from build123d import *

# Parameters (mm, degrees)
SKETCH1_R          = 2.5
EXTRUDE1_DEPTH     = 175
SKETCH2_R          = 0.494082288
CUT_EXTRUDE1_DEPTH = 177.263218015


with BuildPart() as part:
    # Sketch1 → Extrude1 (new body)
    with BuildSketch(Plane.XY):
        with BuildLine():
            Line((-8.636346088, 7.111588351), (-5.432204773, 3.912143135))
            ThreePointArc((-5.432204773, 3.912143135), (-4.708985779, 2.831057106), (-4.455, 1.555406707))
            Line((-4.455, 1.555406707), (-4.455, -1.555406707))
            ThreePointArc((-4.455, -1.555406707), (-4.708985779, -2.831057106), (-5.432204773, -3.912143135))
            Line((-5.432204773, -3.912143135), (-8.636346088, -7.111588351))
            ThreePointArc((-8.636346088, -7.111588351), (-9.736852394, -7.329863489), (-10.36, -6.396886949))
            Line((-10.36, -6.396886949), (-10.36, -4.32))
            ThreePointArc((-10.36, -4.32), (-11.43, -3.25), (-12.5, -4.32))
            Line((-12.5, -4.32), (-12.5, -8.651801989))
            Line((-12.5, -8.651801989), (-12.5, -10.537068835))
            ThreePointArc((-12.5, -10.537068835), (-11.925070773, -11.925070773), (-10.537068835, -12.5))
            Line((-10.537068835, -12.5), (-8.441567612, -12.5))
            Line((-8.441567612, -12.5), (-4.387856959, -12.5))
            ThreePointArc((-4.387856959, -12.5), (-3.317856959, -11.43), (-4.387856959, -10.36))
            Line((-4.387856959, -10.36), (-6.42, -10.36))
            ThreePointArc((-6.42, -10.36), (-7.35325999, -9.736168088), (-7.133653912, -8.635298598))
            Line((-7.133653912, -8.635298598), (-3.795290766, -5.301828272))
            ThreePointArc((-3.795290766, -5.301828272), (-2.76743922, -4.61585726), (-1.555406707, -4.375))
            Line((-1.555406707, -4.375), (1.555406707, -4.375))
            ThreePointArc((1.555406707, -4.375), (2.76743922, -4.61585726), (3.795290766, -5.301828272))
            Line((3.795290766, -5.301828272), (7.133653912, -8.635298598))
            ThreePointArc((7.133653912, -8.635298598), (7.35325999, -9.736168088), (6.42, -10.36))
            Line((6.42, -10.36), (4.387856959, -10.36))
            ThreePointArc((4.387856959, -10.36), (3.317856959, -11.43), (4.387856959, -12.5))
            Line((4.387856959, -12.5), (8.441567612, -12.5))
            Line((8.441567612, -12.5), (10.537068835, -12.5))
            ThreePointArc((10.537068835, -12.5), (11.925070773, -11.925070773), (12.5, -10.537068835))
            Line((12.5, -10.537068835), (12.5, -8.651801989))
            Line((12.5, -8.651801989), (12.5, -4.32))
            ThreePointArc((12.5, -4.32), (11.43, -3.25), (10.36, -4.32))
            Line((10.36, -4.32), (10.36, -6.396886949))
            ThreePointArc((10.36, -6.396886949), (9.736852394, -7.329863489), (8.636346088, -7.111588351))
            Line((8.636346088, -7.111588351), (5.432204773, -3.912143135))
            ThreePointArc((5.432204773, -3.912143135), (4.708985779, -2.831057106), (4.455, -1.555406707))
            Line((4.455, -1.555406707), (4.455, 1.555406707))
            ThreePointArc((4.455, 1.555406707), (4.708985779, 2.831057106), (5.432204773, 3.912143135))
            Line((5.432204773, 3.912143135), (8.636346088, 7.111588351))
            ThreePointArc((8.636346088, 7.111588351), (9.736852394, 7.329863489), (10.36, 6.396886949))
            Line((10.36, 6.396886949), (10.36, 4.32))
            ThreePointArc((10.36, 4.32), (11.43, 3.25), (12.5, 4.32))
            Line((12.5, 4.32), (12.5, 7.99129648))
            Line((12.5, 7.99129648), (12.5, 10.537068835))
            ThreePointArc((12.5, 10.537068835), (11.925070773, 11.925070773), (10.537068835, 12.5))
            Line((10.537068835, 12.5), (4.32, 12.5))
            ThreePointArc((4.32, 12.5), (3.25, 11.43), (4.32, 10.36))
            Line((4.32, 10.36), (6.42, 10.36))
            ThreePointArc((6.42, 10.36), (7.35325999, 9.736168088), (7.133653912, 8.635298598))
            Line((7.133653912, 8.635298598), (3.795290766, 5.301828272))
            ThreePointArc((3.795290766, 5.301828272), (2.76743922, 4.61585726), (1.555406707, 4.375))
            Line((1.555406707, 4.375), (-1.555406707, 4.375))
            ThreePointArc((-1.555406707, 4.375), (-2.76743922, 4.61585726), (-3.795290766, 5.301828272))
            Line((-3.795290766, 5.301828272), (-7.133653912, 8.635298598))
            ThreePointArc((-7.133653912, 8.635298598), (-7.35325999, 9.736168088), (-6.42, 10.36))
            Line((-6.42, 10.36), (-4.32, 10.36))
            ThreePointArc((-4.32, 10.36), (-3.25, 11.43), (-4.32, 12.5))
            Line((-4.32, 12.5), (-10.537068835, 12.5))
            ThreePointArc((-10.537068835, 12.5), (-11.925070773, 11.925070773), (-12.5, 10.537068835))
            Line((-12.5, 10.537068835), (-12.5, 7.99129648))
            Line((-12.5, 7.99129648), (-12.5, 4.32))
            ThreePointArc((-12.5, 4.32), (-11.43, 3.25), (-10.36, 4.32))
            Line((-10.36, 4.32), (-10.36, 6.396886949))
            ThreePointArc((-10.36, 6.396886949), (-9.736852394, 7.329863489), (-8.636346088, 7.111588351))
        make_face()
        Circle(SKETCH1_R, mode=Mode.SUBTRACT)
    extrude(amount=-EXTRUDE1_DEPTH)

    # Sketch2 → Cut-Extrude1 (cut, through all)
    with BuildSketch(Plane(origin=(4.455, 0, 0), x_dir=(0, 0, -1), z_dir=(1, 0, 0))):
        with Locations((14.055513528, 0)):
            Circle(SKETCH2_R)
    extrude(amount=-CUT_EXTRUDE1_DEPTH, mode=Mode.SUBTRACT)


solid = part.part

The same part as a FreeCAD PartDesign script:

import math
import FreeCAD as App
import Part
import Sketcher

doc = App.newDocument("Part")
body = doc.addObject("PartDesign::Body", "Body")

sketch1 = body.newObject("Sketcher::SketchObject", "Sketch")
sketch1.AttachmentSupport = (doc.getObject("XY_Plane"), [""])
sketch1.MapMode = "FlatFace"
sketch1.addGeometry(Part.LineSegment(App.Vector(-8.636346, 7.111588, 0), App.Vector(-5.432205, 3.912143, 0)), False)
sketch1.addGeometry(Part.ArcOfCircle(Part.Circle(App.Vector(-7.785487, 1.555407, 0), App.Vector(0, 0, 1), 3.330487), math.radians(0), math.radians(45.042018)), False)
sketch1.addGeometry(Part.LineSegment(App.Vector(-4.455, 1.555407, 0), App.Vector(-4.455, -1.555407, 0)), False)
sketch1.addGeometry(Part.ArcOfCircle(Part.Circle(App.Vector(-7.785487, -1.555407, 0), App.Vector(0, 0, 1), 3.330487), math.radians(-45.042018), math.radians(0)), False)
sketch1.addGeometry(Part.LineSegment(App.Vector(-5.432205, -3.912143, 0), App.Vector(-8.636346, -7.111588, 0)), False)
sketch1.addGeometry(Part.ArcOfCircle(Part.Circle(App.Vector(-9.35, -6.396887, 0), App.Vector(0, 0, 1), 1.01), math.radians(-180), math.radians(-45.042018)), False)
sketch1.addGeometry(Part.LineSegment(App.Vector(-10.36, -6.396887, 0), App.Vector(-10.36, -4.32, 0)), False)
sketch1.addGeometry(Part.ArcOfCircle(Part.Circle(App.Vector(-11.43, -4.32, 0), App.Vector(0, 0, 1), 1.07), math.radians(0), math.radians(180)), False)
sketch1.addGeometry(Part.LineSegment(App.Vector(-12.5, -4.32, 0), App.Vector(-12.5, -10.537069, 0)), False)
sketch1.addGeometry(Part.ArcOfCircle(Part.Circle(App.Vector(-10.537069, -10.537069, 0), App.Vector(0, 0, 1), 1.962931), math.radians(180), math.radians(270)), False)
sketch1.addGeometry(Part.LineSegment(App.Vector(-10.537069, -12.5, 0), App.Vector(-4.387857, -12.5, 0)), False)
sketch1.addGeometry(Part.ArcOfCircle(Part.Circle(App.Vector(-4.387857, -11.43, 0), App.Vector(0, 0, 1), 1.07), math.radians(-90), math.radians(90)), False)
sketch1.addGeometry(Part.LineSegment(App.Vector(-4.387857, -10.36, 0), App.Vector(-6.42, -10.36, 0)), False)
sketch1.addGeometry(Part.ArcOfCircle(Part.Circle(App.Vector(-6.42, -9.35, 0), App.Vector(0, 0, 1), 1.01), math.radians(134.957982), math.radians(270)), False)
sketch1.addGeometry(Part.LineSegment(App.Vector(-7.133654, -8.635299, 0), App.Vector(-3.795291, -5.301828, 0)), False)
sketch1.addGeometry(Part.ArcOfCircle(Part.Circle(App.Vector(-1.555407, -7.545, 0), App.Vector(0, 0, 1), 3.17), math.radians(90), math.radians(134.957982)), False)
sketch1.addGeometry(Part.LineSegment(App.Vector(-1.555407, -4.375, 0), App.Vector(1.555407, -4.375, 0)), False)
sketch1.addGeometry(Part.ArcOfCircle(Part.Circle(App.Vector(1.555407, -7.545, 0), App.Vector(0, 0, 1), 3.17), math.radians(45.042018), math.radians(90)), False)
sketch1.addGeometry(Part.LineSegment(App.Vector(3.795291, -5.301828, 0), App.Vector(7.133654, -8.635299, 0)), False)
sketch1.addGeometry(Part.ArcOfCircle(Part.Circle(App.Vector(6.42, -9.35, 0), App.Vector(0, 0, 1), 1.01), math.radians(-90), math.radians(45.042018)), False)
sketch1.addGeometry(Part.LineSegment(App.Vector(6.42, -10.36, 0), App.Vector(4.387857, -10.36, 0)), False)
sketch1.addGeometry(Part.ArcOfCircle(Part.Circle(App.Vector(4.387857, -11.43, 0), App.Vector(0, 0, 1), 1.07), math.radians(90), math.radians(270)), False)
sketch1.addGeometry(Part.LineSegment(App.Vector(4.387857, -12.5, 0), App.Vector(10.537069, -12.5, 0)), False)
sketch1.addGeometry(Part.ArcOfCircle(Part.Circle(App.Vector(10.537069, -10.537069, 0), App.Vector(0, 0, 1), 1.962931), math.radians(-90), math.radians(0)), False)
sketch1.addGeometry(Part.LineSegment(App.Vector(12.5, -10.537069, 0), App.Vector(12.5, -4.32, 0)), False)
sketch1.addGeometry(Part.ArcOfCircle(Part.Circle(App.Vector(11.43, -4.32, 0), App.Vector(0, 0, 1), 1.07), math.radians(0), math.radians(180)), False)
sketch1.addGeometry(Part.LineSegment(App.Vector(10.36, -4.32, 0), App.Vector(10.36, -6.396887, 0)), False)
sketch1.addGeometry(Part.ArcOfCircle(Part.Circle(App.Vector(9.35, -6.396887, 0), App.Vector(0, 0, 1), 1.01), math.radians(-134.957982), math.radians(0)), False)
sketch1.addGeometry(Part.LineSegment(App.Vector(8.636346, -7.111588, 0), App.Vector(5.432205, -3.912143, 0)), False)
sketch1.addGeometry(Part.ArcOfCircle(Part.Circle(App.Vector(7.785487, -1.555407, 0), App.Vector(0, 0, 1), 3.330487), math.radians(180), math.radians(225.042018)), False)
sketch1.addGeometry(Part.LineSegment(App.Vector(4.455, -1.555407, 0), App.Vector(4.455, 1.555407, 0)), False)
sketch1.addGeometry(Part.ArcOfCircle(Part.Circle(App.Vector(7.785487, 1.555407, 0), App.Vector(0, 0, 1), 3.330487), math.radians(134.957982), math.radians(180)), False)
sketch1.addGeometry(Part.LineSegment(App.Vector(5.432205, 3.912143, 0), App.Vector(8.636346, 7.111588, 0)), False)
sketch1.addGeometry(Part.ArcOfCircle(Part.Circle(App.Vector(9.35, 6.396887, 0), App.Vector(0, 0, 1), 1.01), math.radians(0), math.radians(134.957982)), False)
sketch1.addGeometry(Part.LineSegment(App.Vector(10.36, 6.396887, 0), App.Vector(10.36, 4.32, 0)), False)
sketch1.addGeometry(Part.ArcOfCircle(Part.Circle(App.Vector(11.43, 4.32, 0), App.Vector(0, 0, 1), 1.07), math.radians(180), math.radians(360)), False)
sketch1.addGeometry(Part.LineSegment(App.Vector(12.5, 4.32, 0), App.Vector(12.5, 10.537069, 0)), False)
sketch1.addGeometry(Part.ArcOfCircle(Part.Circle(App.Vector(10.537069, 10.537069, 0), App.Vector(0, 0, 1), 1.962931), math.radians(0), math.radians(90)), False)
sketch1.addGeometry(Part.LineSegment(App.Vector(10.537069, 12.5, 0), App.Vector(4.32, 12.5, 0)), False)
sketch1.addGeometry(Part.ArcOfCircle(Part.Circle(App.Vector(4.32, 11.43, 0), App.Vector(0, 0, 1), 1.07), math.radians(90), math.radians(270)), False)
sketch1.addGeometry(Part.LineSegment(App.Vector(4.32, 10.36, 0), App.Vector(6.42, 10.36, 0)), False)
sketch1.addGeometry(Part.ArcOfCircle(Part.Circle(App.Vector(6.42, 9.35, 0), App.Vector(0, 0, 1), 1.01), math.radians(-45.042018), math.radians(90)), False)
sketch1.addGeometry(Part.LineSegment(App.Vector(7.133654, 8.635299, 0), App.Vector(3.795291, 5.301828, 0)), False)
sketch1.addGeometry(Part.ArcOfCircle(Part.Circle(App.Vector(1.555407, 7.545, 0), App.Vector(0, 0, 1), 3.17), math.radians(-90), math.radians(-45.042018)), False)
sketch1.addGeometry(Part.LineSegment(App.Vector(1.555407, 4.375, 0), App.Vector(-1.555407, 4.375, 0)), False)
sketch1.addGeometry(Part.ArcOfCircle(Part.Circle(App.Vector(-1.555407, 7.545, 0), App.Vector(0, 0, 1), 3.17), math.radians(-134.957982), math.radians(-90)), False)
sketch1.addGeometry(Part.LineSegment(App.Vector(-3.795291, 5.301828, 0), App.Vector(-7.133654, 8.635299, 0)), False)
sketch1.addGeometry(Part.ArcOfCircle(Part.Circle(App.Vector(-6.42, 9.35, 0), App.Vector(0, 0, 1), 1.01), math.radians(90), math.radians(225.042018)), False)
sketch1.addGeometry(Part.LineSegment(App.Vector(-6.42, 10.36, 0), App.Vector(-4.32, 10.36, 0)), False)
sketch1.addGeometry(Part.ArcOfCircle(Part.Circle(App.Vector(-4.32, 11.43, 0), App.Vector(0, 0, 1), 1.07), math.radians(-90), math.radians(90)), False)
sketch1.addGeometry(Part.LineSegment(App.Vector(-4.32, 12.5, 0), App.Vector(-10.537069, 12.5, 0)), False)
sketch1.addGeometry(Part.ArcOfCircle(Part.Circle(App.Vector(-10.537069, 10.537069, 0), App.Vector(0, 0, 1), 1.962931), math.radians(90), math.radians(180)), False)
sketch1.addGeometry(Part.LineSegment(App.Vector(-12.5, 10.537069, 0), App.Vector(-12.5, 4.32, 0)), False)
sketch1.addGeometry(Part.ArcOfCircle(Part.Circle(App.Vector(-11.43, 4.32, 0), App.Vector(0, 0, 1), 1.07), math.radians(180), math.radians(360)), False)
sketch1.addGeometry(Part.LineSegment(App.Vector(-10.36, 4.32, 0), App.Vector(-10.36, 6.396887, 0)), False)
sketch1.addGeometry(Part.ArcOfCircle(Part.Circle(App.Vector(-9.35, 6.396887, 0), App.Vector(0, 0, 1), 1.01), math.radians(45.042018), math.radians(180)), False)
sketch1.addGeometry(Part.Circle(App.Vector(0, 0, 0), App.Vector(0, 0, 1), 2.5), False)
sketch1.addConstraint(Sketcher.Constraint("Tangent", 0, 2, 1, 2))
sketch1.addConstraint(Sketcher.Constraint("Tangent", 1, 1, 2, 1))
sketch1.addConstraint(Sketcher.Constraint("Tangent", 2, 2, 3, 2))
sketch1.addConstraint(Sketcher.Constraint("Tangent", 3, 1, 4, 1))
sketch1.addConstraint(Sketcher.Constraint("Tangent", 4, 2, 5, 2))
sketch1.addConstraint(Sketcher.Constraint("Tangent", 5, 1, 6, 1))
sketch1.addConstraint(Sketcher.Constraint("Tangent", 6, 2, 7, 1))
sketch1.addConstraint(Sketcher.Constraint("Tangent", 7, 2, 8, 1))
sketch1.addConstraint(Sketcher.Constraint("Tangent", 8, 2, 9, 1))
sketch1.addConstraint(Sketcher.Constraint("Tangent", 9, 2, 10, 1))
sketch1.addConstraint(Sketcher.Constraint("Tangent", 10, 2, 11, 1))
sketch1.addConstraint(Sketcher.Constraint("Tangent", 11, 2, 12, 1))
sketch1.addConstraint(Sketcher.Constraint("Tangent", 12, 2, 13, 2))
sketch1.addConstraint(Sketcher.Constraint("Tangent", 13, 1, 14, 1))
sketch1.addConstraint(Sketcher.Constraint("Tangent", 14, 2, 15, 2))
sketch1.addConstraint(Sketcher.Constraint("Tangent", 15, 1, 16, 1))
sketch1.addConstraint(Sketcher.Constraint("Tangent", 16, 2, 17, 2))
sketch1.addConstraint(Sketcher.Constraint("Tangent", 17, 1, 18, 1))
sketch1.addConstraint(Sketcher.Constraint("Tangent", 18, 2, 19, 2))
sketch1.addConstraint(Sketcher.Constraint("Tangent", 19, 1, 20, 1))
sketch1.addConstraint(Sketcher.Constraint("Tangent", 20, 2, 21, 1))
sketch1.addConstraint(Sketcher.Constraint("Tangent", 21, 2, 22, 1))
sketch1.addConstraint(Sketcher.Constraint("Tangent", 22, 2, 23, 1))
sketch1.addConstraint(Sketcher.Constraint("Tangent", 23, 2, 24, 1))
sketch1.addConstraint(Sketcher.Constraint("Tangent", 24, 2, 25, 1))
sketch1.addConstraint(Sketcher.Constraint("Tangent", 25, 2, 26, 1))
sketch1.addConstraint(Sketcher.Constraint("Tangent", 26, 2, 27, 2))
sketch1.addConstraint(Sketcher.Constraint("Tangent", 27, 1, 28, 1))
sketch1.addConstraint(Sketcher.Constraint("Tangent", 28, 2, 29, 2))
sketch1.addConstraint(Sketcher.Constraint("Tangent", 29, 1, 30, 1))
sketch1.addConstraint(Sketcher.Constraint("Tangent", 30, 2, 31, 2))
sketch1.addConstraint(Sketcher.Constraint("Tangent", 31, 1, 32, 1))
sketch1.addConstraint(Sketcher.Constraint("Tangent", 32, 2, 33, 2))
sketch1.addConstraint(Sketcher.Constraint("Tangent", 33, 1, 34, 1))
sketch1.addConstraint(Sketcher.Constraint("Tangent", 34, 2, 35, 1))
sketch1.addConstraint(Sketcher.Constraint("Tangent", 35, 2, 36, 1))
sketch1.addConstraint(Sketcher.Constraint("Tangent", 36, 2, 37, 1))
sketch1.addConstraint(Sketcher.Constraint("Tangent", 37, 2, 38, 1))
sketch1.addConstraint(Sketcher.Constraint("Tangent", 38, 2, 39, 1))
sketch1.addConstraint(Sketcher.Constraint("Tangent", 39, 2, 40, 1))
sketch1.addConstraint(Sketcher.Constraint("Tangent", 40, 2, 41, 2))
sketch1.addConstraint(Sketcher.Constraint("Tangent", 41, 1, 42, 1))
sketch1.addConstraint(Sketcher.Constraint("Tangent", 42, 2, 43, 2))
sketch1.addConstraint(Sketcher.Constraint("Tangent", 43, 1, 44, 1))
sketch1.addConstraint(Sketcher.Constraint("Tangent", 44, 2, 45, 2))
sketch1.addConstraint(Sketcher.Constraint("Tangent", 45, 1, 46, 1))
sketch1.addConstraint(Sketcher.Constraint("Tangent", 46, 2, 47, 2))
sketch1.addConstraint(Sketcher.Constraint("Tangent", 47, 1, 48, 1))
sketch1.addConstraint(Sketcher.Constraint("Tangent", 48, 2, 49, 1))
sketch1.addConstraint(Sketcher.Constraint("Tangent", 49, 2, 50, 1))
sketch1.addConstraint(Sketcher.Constraint("Tangent", 50, 2, 51, 1))
sketch1.addConstraint(Sketcher.Constraint("Tangent", 51, 2, 52, 1))
sketch1.addConstraint(Sketcher.Constraint("Tangent", 52, 2, 53, 1))
sketch1.addConstraint(Sketcher.Constraint("Tangent", 53, 2, 54, 1))
sketch1.addConstraint(Sketcher.Constraint("Tangent", 54, 2, 55, 2))
sketch1.addConstraint(Sketcher.Constraint("Tangent", 55, 1, 0, 1))
sketch1.addConstraint(Sketcher.Constraint("Vertical", 2))
sketch1.addConstraint(Sketcher.Constraint("Vertical", 6))
sketch1.addConstraint(Sketcher.Constraint("Vertical", 8))
sketch1.addConstraint(Sketcher.Constraint("Horizontal", 10))
sketch1.addConstraint(Sketcher.Constraint("Horizontal", 12))
sketch1.addConstraint(Sketcher.Constraint("Horizontal", 16))
sketch1.addConstraint(Sketcher.Constraint("Horizontal", 20))
sketch1.addConstraint(Sketcher.Constraint("Horizontal", 22))
sketch1.addConstraint(Sketcher.Constraint("Vertical", 24))
sketch1.addConstraint(Sketcher.Constraint("Vertical", 26))
sketch1.addConstraint(Sketcher.Constraint("Vertical", 30))
sketch1.addConstraint(Sketcher.Constraint("Vertical", 34))
sketch1.addConstraint(Sketcher.Constraint("Vertical", 36))
sketch1.addConstraint(Sketcher.Constraint("Horizontal", 38))
sketch1.addConstraint(Sketcher.Constraint("Horizontal", 40))
sketch1.addConstraint(Sketcher.Constraint("Horizontal", 44))
sketch1.addConstraint(Sketcher.Constraint("Horizontal", 48))
sketch1.addConstraint(Sketcher.Constraint("Horizontal", 50))
sketch1.addConstraint(Sketcher.Constraint("Vertical", 52))
sketch1.addConstraint(Sketcher.Constraint("Vertical", 54))
sketch1.addConstraint(Sketcher.Constraint("Coincident", 56, 3, -1, 1))
sketch1.addConstraint(Sketcher.Constraint("Equal", 1, 3))
sketch1.addConstraint(Sketcher.Constraint("Equal", 7, 11))
sketch1.addConstraint(Sketcher.Constraint("Equal", 5, 13))
sketch1.addConstraint(Sketcher.Constraint("Equal", 15, 17))
sketch1.addConstraint(Sketcher.Constraint("Equal", 13, 19))
sketch1.addConstraint(Sketcher.Constraint("Equal", 11, 21))
sketch1.addConstraint(Sketcher.Constraint("Equal", 9, 23))
sketch1.addConstraint(Sketcher.Constraint("Equal", 21, 25))
sketch1.addConstraint(Sketcher.Constraint("Equal", 19, 27))
sketch1.addConstraint(Sketcher.Constraint("Equal", 3, 29))
sketch1.addConstraint(Sketcher.Constraint("Equal", 29, 31))
sketch1.addConstraint(Sketcher.Constraint("Equal", 27, 33))
sketch1.addConstraint(Sketcher.Constraint("Equal", 25, 35))
sketch1.addConstraint(Sketcher.Constraint("Equal", 23, 37))
sketch1.addConstraint(Sketcher.Constraint("Equal", 35, 39))
sketch1.addConstraint(Sketcher.Constraint("Equal", 33, 41))
sketch1.addConstraint(Sketcher.Constraint("Equal", 17, 43))
sketch1.addConstraint(Sketcher.Constraint("Equal", 43, 45))
sketch1.addConstraint(Sketcher.Constraint("Equal", 41, 47))
sketch1.addConstraint(Sketcher.Constraint("Equal", 39, 49))
sketch1.addConstraint(Sketcher.Constraint("Equal", 37, 51))
sketch1.addConstraint(Sketcher.Constraint("Equal", 49, 53))
sketch1.addConstraint(Sketcher.Constraint("Equal", 47, 55))
sketch1.addConstraint(Sketcher.Constraint("Symmetric", 1, 3, 29, 3, -1, 1))
sketch1.addConstraint(Sketcher.Constraint("Symmetric", 5, 3, 33, 3, -1, 1))
sketch1.addConstraint(Sketcher.Constraint("Symmetric", 13, 3, 41, 3, -1, 1))
sketch1.addConstraint(Sketcher.Constraint("Symmetric", 15, 3, 43, 3, -1, 1))
sketch1.addConstraint(Sketcher.Constraint("Symmetric", 19, 3, 47, 3, -1, 1))
sketch1.addConstraint(Sketcher.Constraint("Symmetric", 25, 3, 53, 3, -1, 1))
sketch1.addConstraint(Sketcher.Constraint("Symmetric", 13, 3, 19, 3, -2))
sketch1.addConstraint(Sketcher.Constraint("Symmetric", 7, 3, 25, 3, -2))
sketch1.addConstraint(Sketcher.Constraint("Symmetric", 4, 2, 27, 1, -2))
sketch1.addConstraint(Sketcher.Constraint("Symmetric", 0, 2, 31, 1, -2))
sketch1.addConstraint(Sketcher.Constraint("Parallel", 4, 14))
sketch1.addConstraint(Sketcher.Constraint("Parallel", 0, 18))
sketch1.addConstraint(Sketcher.Constraint("Parallel", 28, 46))
sketch1.addConstraint(Sketcher.Constraint("Horizontal", 35, 3, 53, 3))
sketch1.addConstraint(Sketcher.Constraint("Equal", 12, 20))
sketch1.addConstraint(Sketcher.Constraint("Equal", 40, 48))
sketch1.addConstraint(Sketcher.Constraint("Equal", 44, 2))
sketch1.addConstraint(Sketcher.Constraint("Equal", 50, 8))
sketch1.addConstraint(Sketcher.Constraint("Diameter", 56, 5.0))
sketch1.addConstraint(Sketcher.Constraint("Radius", 5, 1.01))
sketch1.addConstraint(Sketcher.Constraint("Radius", 7, 1.07))
sketch1.addConstraint(Sketcher.Constraint("Radius", 15, 3.17))
sketch1.addConstraint(Sketcher.Constraint("DistanceX", 40, 1, 40, 2, 2.1))
sketch1.addConstraint(Sketcher.Constraint("DistanceX", 7, 2, -1, 1, 12.5))
sketch1.addConstraint(Sketcher.Constraint("DistanceY", 9, 2, -1, 1, 12.5))
sketch1.addConstraint(Sketcher.Constraint("DistanceY", 7, 3, -1, 1, 4.32))
sketch1.addConstraint(Sketcher.Constraint("Radius", 9, 1.962931))
sketch1.addConstraint(Sketcher.Constraint("DistanceY", 15, 3, -1, 1, 7.545))
sketch1.addConstraint(Sketcher.Constraint("DistanceX", 1, 1, -1, 1, 4.455))
sketch1.addConstraint(Sketcher.Constraint("Radius", 1, 3.330487))
sketch1.addConstraint(Sketcher.Constraint("Distance", 14, 4.7177))
sketch1.addConstraint(Sketcher.Constraint("DistanceX", 10, 1, 10, 2, 6.149212))
pad1 = body.newObject("PartDesign::Pad", "Pad")
pad1.Profile = sketch1
pad1.Length = 175
pad1.Reversed = True

sketch2 = body.newObject("Sketcher::SketchObject", "Sketch001")
sketch2.AttachmentSupport = (doc.getObject("YZ_Plane"), [""])
sketch2.MapMode = "FlatFace"
sketch2.AttachmentOffset = App.Placement(App.Vector(0, 0, 4.455), App.Rotation())
sketch2.addGeometry(Part.Circle(App.Vector(0, -14.055514, 0), App.Vector(0, 0, 1), 0.494082), False)
sketch2.addConstraint(Sketcher.Constraint("PointOnObject", 0, 3, -2))
sketch2.addConstraint(Sketcher.Constraint("Diameter", 0, 0.988165))
sketch2.addConstraint(Sketcher.Constraint("DistanceY", 0, 3, -1, 1, 14.055514))
pocket1 = body.newObject("PartDesign::Pocket", "Pocket")
pocket1.Profile = sketch2
pocket1.Type = "ThroughAll"

doc.recompute()
